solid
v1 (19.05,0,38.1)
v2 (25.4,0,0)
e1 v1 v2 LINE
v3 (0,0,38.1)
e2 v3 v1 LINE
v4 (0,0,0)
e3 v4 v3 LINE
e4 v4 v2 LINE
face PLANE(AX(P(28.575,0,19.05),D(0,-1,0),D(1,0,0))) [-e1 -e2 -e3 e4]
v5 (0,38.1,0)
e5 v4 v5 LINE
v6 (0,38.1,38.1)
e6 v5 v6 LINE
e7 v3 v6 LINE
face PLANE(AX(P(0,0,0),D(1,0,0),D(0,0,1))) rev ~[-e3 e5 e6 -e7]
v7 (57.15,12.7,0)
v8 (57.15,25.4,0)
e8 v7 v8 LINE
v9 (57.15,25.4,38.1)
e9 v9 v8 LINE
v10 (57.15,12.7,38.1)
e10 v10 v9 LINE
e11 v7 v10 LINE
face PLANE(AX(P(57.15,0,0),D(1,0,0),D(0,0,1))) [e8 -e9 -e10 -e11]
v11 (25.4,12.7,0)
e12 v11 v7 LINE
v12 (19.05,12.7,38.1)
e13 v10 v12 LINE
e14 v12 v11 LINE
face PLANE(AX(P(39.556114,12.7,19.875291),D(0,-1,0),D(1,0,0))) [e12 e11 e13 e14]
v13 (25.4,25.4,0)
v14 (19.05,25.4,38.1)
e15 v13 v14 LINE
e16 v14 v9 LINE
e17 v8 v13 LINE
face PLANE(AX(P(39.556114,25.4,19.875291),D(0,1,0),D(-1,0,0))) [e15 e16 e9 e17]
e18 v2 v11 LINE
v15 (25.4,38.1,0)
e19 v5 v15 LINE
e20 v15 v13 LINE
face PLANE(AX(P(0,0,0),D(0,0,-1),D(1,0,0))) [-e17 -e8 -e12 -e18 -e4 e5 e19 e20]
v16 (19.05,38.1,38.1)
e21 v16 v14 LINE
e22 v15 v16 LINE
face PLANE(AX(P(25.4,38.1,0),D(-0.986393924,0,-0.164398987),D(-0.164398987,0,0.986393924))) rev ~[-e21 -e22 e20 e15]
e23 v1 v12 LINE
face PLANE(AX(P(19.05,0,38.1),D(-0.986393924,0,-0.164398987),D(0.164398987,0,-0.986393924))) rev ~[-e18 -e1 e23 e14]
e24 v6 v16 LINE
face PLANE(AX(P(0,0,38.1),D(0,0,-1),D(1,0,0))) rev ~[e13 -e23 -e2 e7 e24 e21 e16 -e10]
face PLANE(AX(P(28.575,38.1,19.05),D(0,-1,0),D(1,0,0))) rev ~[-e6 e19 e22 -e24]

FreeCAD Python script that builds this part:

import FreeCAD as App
import Part
import Sketcher

V = App.Vector
Q = App.Units.Quantity

doc = App.newDocument("Part")
params = doc.addObject("Spreadsheet::Sheet", "Params")
for row, (alias, value) in enumerate([
    ("sketch1_height", "1.5 in"),
    ("sketch1_width", "2.25 in"),
    ("pad1_length", "1.5 in"),
    ("sketch2_width", "1.5 in"),
    ("sketch2_width2", "1.25 in"),
    ("pocket1_length", "0.5 in"),
    ("sketch3_width", "1.5 in"),
    ("sketch3_width2", "1.25 in"),
    ("pocket2_length", "0.5 in"),
], start=1):
    params.set(f"A{row}", alias)
    params.set(f"B{row}", "=" + value)
    params.setAlias(f"B{row}", alias)

body = doc.addObject("PartDesign::Body", "Body")

sketch1 = body.newObject("Sketcher::SketchObject", "Sketch")
sketch1.AttachmentSupport = (doc.getObject("XZ_Plane"), [""])
sketch1.MapMode = "FlatFace"
sketch1.addGeometry([
    Part.LineSegment(V(0, 38, 0), V(0, 0, 0)),
    Part.LineSegment(V(0, 0, 0), V(57, 0, 0)),
    Part.LineSegment(V(57, 0, 0), V(57, 38, 0)),
    Part.LineSegment(V(57, 38, 0), V(0, 38, 0)),
], False)
sketch1.addConstraint([
    Sketcher.Constraint("Coincident", 0, 2, 1, 1),
    Sketcher.Constraint("Coincident", 1, 2, 2, 1),
    Sketcher.Constraint("Coincident", 2, 2, 3, 1),
    Sketcher.Constraint("Coincident", 3, 2, 0, 1),
    Sketcher.Constraint("Vertical", 0),
    Sketcher.Constraint("Horizontal", 1),
    Sketcher.Constraint("Vertical", 2),
    Sketcher.Constraint("Horizontal", 3),
    Sketcher.Constraint("Coincident", 0, 2, -1, 1),
    Sketcher.Constraint("DistanceY", 0, 2, 0, 1, Q("1.5 in")),
    Sketcher.Constraint("DistanceX", 1, 1, 1, 2, Q("2.25 in")),
])
sketch1.setExpression("Constraints[9]", "Params.sketch1_height")
sketch1.setExpression("Constraints[10]", "Params.sketch1_width")
pad1 = body.newObject("PartDesign::Pad", "Pad")
pad1.Profile = sketch1
pad1.setExpression("Length", "Params.pad1_length")
pad1.Reversed = True

sketch2 = body.newObject("Sketcher::SketchObject", "Sketch001")
sketch2.AttachmentSupport = (doc.getObject("XZ_Plane"), [""])
sketch2.MapMode = "FlatFace"
sketch2.addGeometry([
    Part.LineSegment(V(57, 38, 0), V(19, 38, 0)),
    Part.LineSegment(V(19, 38, 0), V(25, 0, 0)),
    Part.LineSegment(V(25, 0, 0), V(57, 0, 0)),
    Part.LineSegment(V(57, 0, 0), V(57, 38, 0)),
], False)
sketch2.addConstraint([
    Sketcher.Constraint("Coincident", 0, 2, 1, 1),
    Sketcher.Constraint("Coincident", 1, 2, 2, 1),
    Sketcher.Constraint("Coincident", 2, 2, 3, 1),
    Sketcher.Constraint("Coincident", 3, 2, 0, 1),
    Sketcher.Constraint("Horizontal", 0),
    Sketcher.Constraint("Horizontal", 2),
    Sketcher.Constraint("Vertical", 3),
    Sketcher.Constraint("PointOnObject", 1, 2, -1),
    Sketcher.Constraint("Equal", 0, 3),
    Sketcher.Constraint("DistanceX", 0, 2, 0, 1, Q("1.5 in")),
    Sketcher.Constraint("DistanceX", -1, 1, 1, 2, Q("1 in")),
    Sketcher.Constraint("DistanceX", 2, 1, 2, 2, Q("1.25 in")),
])
sketch2.setExpression("Constraints[9]", "Params.sketch2_width")
sketch2.setExpression("Constraints[11]", "Params.sketch2_width2")
pocket1 = body.newObject("PartDesign::Pocket", "Pocket")
pocket1.Profile = sketch2
pocket1.setExpression("Length", "Params.pocket1_length")

sketch3 = body.newObject("Sketcher::SketchObject", "Sketch002")
sketch3.AttachmentSupport = (doc.getObject("XZ_Plane"), [""])
sketch3.MapMode = "FlatFace"
sketch3.AttachmentOffset = App.Placement(V(0, 0, -1.5 * 25.4), App.Rotation())
sketch3.addGeometry([
    Part.LineSegment(V(25, 0, 0), V(19, 38, 0)),
    Part.LineSegment(V(19, 38, 0), V(57, 38, 0)),
    Part.LineSegment(V(57, 38, 0), V(57, 0, 0)),
    Part.LineSegment(V(57, 0, 0), V(25, 0, 0)),
], False)
sketch3.addConstraint([
    Sketcher.Constraint("Coincident", 0, 2, 1, 1),
    Sketcher.Constraint("Coincident", 1, 2, 2, 1),
    Sketcher.Constraint("Coincident", 2, 2, 3, 1),
    Sketcher.Constraint("Coincident", 3, 2, 0, 1),
    Sketcher.Constraint("Horizontal", 1),
    Sketcher.Constraint("Vertical", 2),
    Sketcher.Constraint("Horizontal", 3),
    Sketcher.Constraint("PointOnObject", 2, 2, -1),
    Sketcher.Constraint("Equal", 1, 2),
    Sketcher.Constraint("DistanceX", 1, 1, 1, 2, Q("1.5 in")),
    Sketcher.Constraint("DistanceX", -1, 1, 3, 2, Q("1 in")),
    Sketcher.Constraint("DistanceX", 3, 2, 3, 1, Q("1.25 in")),
])
sketch3.setExpression("Constraints[9]", "Params.sketch3_width")
sketch3.setExpression("Constraints[11]", "Params.sketch3_width2")
pocket2 = body.newObject("PartDesign::Pocket", "Pocket001")
pocket2.Profile = sketch3
pocket2.setExpression("Length", "Params.pocket2_length")
pocket2.Reversed = True

doc.recompute()
